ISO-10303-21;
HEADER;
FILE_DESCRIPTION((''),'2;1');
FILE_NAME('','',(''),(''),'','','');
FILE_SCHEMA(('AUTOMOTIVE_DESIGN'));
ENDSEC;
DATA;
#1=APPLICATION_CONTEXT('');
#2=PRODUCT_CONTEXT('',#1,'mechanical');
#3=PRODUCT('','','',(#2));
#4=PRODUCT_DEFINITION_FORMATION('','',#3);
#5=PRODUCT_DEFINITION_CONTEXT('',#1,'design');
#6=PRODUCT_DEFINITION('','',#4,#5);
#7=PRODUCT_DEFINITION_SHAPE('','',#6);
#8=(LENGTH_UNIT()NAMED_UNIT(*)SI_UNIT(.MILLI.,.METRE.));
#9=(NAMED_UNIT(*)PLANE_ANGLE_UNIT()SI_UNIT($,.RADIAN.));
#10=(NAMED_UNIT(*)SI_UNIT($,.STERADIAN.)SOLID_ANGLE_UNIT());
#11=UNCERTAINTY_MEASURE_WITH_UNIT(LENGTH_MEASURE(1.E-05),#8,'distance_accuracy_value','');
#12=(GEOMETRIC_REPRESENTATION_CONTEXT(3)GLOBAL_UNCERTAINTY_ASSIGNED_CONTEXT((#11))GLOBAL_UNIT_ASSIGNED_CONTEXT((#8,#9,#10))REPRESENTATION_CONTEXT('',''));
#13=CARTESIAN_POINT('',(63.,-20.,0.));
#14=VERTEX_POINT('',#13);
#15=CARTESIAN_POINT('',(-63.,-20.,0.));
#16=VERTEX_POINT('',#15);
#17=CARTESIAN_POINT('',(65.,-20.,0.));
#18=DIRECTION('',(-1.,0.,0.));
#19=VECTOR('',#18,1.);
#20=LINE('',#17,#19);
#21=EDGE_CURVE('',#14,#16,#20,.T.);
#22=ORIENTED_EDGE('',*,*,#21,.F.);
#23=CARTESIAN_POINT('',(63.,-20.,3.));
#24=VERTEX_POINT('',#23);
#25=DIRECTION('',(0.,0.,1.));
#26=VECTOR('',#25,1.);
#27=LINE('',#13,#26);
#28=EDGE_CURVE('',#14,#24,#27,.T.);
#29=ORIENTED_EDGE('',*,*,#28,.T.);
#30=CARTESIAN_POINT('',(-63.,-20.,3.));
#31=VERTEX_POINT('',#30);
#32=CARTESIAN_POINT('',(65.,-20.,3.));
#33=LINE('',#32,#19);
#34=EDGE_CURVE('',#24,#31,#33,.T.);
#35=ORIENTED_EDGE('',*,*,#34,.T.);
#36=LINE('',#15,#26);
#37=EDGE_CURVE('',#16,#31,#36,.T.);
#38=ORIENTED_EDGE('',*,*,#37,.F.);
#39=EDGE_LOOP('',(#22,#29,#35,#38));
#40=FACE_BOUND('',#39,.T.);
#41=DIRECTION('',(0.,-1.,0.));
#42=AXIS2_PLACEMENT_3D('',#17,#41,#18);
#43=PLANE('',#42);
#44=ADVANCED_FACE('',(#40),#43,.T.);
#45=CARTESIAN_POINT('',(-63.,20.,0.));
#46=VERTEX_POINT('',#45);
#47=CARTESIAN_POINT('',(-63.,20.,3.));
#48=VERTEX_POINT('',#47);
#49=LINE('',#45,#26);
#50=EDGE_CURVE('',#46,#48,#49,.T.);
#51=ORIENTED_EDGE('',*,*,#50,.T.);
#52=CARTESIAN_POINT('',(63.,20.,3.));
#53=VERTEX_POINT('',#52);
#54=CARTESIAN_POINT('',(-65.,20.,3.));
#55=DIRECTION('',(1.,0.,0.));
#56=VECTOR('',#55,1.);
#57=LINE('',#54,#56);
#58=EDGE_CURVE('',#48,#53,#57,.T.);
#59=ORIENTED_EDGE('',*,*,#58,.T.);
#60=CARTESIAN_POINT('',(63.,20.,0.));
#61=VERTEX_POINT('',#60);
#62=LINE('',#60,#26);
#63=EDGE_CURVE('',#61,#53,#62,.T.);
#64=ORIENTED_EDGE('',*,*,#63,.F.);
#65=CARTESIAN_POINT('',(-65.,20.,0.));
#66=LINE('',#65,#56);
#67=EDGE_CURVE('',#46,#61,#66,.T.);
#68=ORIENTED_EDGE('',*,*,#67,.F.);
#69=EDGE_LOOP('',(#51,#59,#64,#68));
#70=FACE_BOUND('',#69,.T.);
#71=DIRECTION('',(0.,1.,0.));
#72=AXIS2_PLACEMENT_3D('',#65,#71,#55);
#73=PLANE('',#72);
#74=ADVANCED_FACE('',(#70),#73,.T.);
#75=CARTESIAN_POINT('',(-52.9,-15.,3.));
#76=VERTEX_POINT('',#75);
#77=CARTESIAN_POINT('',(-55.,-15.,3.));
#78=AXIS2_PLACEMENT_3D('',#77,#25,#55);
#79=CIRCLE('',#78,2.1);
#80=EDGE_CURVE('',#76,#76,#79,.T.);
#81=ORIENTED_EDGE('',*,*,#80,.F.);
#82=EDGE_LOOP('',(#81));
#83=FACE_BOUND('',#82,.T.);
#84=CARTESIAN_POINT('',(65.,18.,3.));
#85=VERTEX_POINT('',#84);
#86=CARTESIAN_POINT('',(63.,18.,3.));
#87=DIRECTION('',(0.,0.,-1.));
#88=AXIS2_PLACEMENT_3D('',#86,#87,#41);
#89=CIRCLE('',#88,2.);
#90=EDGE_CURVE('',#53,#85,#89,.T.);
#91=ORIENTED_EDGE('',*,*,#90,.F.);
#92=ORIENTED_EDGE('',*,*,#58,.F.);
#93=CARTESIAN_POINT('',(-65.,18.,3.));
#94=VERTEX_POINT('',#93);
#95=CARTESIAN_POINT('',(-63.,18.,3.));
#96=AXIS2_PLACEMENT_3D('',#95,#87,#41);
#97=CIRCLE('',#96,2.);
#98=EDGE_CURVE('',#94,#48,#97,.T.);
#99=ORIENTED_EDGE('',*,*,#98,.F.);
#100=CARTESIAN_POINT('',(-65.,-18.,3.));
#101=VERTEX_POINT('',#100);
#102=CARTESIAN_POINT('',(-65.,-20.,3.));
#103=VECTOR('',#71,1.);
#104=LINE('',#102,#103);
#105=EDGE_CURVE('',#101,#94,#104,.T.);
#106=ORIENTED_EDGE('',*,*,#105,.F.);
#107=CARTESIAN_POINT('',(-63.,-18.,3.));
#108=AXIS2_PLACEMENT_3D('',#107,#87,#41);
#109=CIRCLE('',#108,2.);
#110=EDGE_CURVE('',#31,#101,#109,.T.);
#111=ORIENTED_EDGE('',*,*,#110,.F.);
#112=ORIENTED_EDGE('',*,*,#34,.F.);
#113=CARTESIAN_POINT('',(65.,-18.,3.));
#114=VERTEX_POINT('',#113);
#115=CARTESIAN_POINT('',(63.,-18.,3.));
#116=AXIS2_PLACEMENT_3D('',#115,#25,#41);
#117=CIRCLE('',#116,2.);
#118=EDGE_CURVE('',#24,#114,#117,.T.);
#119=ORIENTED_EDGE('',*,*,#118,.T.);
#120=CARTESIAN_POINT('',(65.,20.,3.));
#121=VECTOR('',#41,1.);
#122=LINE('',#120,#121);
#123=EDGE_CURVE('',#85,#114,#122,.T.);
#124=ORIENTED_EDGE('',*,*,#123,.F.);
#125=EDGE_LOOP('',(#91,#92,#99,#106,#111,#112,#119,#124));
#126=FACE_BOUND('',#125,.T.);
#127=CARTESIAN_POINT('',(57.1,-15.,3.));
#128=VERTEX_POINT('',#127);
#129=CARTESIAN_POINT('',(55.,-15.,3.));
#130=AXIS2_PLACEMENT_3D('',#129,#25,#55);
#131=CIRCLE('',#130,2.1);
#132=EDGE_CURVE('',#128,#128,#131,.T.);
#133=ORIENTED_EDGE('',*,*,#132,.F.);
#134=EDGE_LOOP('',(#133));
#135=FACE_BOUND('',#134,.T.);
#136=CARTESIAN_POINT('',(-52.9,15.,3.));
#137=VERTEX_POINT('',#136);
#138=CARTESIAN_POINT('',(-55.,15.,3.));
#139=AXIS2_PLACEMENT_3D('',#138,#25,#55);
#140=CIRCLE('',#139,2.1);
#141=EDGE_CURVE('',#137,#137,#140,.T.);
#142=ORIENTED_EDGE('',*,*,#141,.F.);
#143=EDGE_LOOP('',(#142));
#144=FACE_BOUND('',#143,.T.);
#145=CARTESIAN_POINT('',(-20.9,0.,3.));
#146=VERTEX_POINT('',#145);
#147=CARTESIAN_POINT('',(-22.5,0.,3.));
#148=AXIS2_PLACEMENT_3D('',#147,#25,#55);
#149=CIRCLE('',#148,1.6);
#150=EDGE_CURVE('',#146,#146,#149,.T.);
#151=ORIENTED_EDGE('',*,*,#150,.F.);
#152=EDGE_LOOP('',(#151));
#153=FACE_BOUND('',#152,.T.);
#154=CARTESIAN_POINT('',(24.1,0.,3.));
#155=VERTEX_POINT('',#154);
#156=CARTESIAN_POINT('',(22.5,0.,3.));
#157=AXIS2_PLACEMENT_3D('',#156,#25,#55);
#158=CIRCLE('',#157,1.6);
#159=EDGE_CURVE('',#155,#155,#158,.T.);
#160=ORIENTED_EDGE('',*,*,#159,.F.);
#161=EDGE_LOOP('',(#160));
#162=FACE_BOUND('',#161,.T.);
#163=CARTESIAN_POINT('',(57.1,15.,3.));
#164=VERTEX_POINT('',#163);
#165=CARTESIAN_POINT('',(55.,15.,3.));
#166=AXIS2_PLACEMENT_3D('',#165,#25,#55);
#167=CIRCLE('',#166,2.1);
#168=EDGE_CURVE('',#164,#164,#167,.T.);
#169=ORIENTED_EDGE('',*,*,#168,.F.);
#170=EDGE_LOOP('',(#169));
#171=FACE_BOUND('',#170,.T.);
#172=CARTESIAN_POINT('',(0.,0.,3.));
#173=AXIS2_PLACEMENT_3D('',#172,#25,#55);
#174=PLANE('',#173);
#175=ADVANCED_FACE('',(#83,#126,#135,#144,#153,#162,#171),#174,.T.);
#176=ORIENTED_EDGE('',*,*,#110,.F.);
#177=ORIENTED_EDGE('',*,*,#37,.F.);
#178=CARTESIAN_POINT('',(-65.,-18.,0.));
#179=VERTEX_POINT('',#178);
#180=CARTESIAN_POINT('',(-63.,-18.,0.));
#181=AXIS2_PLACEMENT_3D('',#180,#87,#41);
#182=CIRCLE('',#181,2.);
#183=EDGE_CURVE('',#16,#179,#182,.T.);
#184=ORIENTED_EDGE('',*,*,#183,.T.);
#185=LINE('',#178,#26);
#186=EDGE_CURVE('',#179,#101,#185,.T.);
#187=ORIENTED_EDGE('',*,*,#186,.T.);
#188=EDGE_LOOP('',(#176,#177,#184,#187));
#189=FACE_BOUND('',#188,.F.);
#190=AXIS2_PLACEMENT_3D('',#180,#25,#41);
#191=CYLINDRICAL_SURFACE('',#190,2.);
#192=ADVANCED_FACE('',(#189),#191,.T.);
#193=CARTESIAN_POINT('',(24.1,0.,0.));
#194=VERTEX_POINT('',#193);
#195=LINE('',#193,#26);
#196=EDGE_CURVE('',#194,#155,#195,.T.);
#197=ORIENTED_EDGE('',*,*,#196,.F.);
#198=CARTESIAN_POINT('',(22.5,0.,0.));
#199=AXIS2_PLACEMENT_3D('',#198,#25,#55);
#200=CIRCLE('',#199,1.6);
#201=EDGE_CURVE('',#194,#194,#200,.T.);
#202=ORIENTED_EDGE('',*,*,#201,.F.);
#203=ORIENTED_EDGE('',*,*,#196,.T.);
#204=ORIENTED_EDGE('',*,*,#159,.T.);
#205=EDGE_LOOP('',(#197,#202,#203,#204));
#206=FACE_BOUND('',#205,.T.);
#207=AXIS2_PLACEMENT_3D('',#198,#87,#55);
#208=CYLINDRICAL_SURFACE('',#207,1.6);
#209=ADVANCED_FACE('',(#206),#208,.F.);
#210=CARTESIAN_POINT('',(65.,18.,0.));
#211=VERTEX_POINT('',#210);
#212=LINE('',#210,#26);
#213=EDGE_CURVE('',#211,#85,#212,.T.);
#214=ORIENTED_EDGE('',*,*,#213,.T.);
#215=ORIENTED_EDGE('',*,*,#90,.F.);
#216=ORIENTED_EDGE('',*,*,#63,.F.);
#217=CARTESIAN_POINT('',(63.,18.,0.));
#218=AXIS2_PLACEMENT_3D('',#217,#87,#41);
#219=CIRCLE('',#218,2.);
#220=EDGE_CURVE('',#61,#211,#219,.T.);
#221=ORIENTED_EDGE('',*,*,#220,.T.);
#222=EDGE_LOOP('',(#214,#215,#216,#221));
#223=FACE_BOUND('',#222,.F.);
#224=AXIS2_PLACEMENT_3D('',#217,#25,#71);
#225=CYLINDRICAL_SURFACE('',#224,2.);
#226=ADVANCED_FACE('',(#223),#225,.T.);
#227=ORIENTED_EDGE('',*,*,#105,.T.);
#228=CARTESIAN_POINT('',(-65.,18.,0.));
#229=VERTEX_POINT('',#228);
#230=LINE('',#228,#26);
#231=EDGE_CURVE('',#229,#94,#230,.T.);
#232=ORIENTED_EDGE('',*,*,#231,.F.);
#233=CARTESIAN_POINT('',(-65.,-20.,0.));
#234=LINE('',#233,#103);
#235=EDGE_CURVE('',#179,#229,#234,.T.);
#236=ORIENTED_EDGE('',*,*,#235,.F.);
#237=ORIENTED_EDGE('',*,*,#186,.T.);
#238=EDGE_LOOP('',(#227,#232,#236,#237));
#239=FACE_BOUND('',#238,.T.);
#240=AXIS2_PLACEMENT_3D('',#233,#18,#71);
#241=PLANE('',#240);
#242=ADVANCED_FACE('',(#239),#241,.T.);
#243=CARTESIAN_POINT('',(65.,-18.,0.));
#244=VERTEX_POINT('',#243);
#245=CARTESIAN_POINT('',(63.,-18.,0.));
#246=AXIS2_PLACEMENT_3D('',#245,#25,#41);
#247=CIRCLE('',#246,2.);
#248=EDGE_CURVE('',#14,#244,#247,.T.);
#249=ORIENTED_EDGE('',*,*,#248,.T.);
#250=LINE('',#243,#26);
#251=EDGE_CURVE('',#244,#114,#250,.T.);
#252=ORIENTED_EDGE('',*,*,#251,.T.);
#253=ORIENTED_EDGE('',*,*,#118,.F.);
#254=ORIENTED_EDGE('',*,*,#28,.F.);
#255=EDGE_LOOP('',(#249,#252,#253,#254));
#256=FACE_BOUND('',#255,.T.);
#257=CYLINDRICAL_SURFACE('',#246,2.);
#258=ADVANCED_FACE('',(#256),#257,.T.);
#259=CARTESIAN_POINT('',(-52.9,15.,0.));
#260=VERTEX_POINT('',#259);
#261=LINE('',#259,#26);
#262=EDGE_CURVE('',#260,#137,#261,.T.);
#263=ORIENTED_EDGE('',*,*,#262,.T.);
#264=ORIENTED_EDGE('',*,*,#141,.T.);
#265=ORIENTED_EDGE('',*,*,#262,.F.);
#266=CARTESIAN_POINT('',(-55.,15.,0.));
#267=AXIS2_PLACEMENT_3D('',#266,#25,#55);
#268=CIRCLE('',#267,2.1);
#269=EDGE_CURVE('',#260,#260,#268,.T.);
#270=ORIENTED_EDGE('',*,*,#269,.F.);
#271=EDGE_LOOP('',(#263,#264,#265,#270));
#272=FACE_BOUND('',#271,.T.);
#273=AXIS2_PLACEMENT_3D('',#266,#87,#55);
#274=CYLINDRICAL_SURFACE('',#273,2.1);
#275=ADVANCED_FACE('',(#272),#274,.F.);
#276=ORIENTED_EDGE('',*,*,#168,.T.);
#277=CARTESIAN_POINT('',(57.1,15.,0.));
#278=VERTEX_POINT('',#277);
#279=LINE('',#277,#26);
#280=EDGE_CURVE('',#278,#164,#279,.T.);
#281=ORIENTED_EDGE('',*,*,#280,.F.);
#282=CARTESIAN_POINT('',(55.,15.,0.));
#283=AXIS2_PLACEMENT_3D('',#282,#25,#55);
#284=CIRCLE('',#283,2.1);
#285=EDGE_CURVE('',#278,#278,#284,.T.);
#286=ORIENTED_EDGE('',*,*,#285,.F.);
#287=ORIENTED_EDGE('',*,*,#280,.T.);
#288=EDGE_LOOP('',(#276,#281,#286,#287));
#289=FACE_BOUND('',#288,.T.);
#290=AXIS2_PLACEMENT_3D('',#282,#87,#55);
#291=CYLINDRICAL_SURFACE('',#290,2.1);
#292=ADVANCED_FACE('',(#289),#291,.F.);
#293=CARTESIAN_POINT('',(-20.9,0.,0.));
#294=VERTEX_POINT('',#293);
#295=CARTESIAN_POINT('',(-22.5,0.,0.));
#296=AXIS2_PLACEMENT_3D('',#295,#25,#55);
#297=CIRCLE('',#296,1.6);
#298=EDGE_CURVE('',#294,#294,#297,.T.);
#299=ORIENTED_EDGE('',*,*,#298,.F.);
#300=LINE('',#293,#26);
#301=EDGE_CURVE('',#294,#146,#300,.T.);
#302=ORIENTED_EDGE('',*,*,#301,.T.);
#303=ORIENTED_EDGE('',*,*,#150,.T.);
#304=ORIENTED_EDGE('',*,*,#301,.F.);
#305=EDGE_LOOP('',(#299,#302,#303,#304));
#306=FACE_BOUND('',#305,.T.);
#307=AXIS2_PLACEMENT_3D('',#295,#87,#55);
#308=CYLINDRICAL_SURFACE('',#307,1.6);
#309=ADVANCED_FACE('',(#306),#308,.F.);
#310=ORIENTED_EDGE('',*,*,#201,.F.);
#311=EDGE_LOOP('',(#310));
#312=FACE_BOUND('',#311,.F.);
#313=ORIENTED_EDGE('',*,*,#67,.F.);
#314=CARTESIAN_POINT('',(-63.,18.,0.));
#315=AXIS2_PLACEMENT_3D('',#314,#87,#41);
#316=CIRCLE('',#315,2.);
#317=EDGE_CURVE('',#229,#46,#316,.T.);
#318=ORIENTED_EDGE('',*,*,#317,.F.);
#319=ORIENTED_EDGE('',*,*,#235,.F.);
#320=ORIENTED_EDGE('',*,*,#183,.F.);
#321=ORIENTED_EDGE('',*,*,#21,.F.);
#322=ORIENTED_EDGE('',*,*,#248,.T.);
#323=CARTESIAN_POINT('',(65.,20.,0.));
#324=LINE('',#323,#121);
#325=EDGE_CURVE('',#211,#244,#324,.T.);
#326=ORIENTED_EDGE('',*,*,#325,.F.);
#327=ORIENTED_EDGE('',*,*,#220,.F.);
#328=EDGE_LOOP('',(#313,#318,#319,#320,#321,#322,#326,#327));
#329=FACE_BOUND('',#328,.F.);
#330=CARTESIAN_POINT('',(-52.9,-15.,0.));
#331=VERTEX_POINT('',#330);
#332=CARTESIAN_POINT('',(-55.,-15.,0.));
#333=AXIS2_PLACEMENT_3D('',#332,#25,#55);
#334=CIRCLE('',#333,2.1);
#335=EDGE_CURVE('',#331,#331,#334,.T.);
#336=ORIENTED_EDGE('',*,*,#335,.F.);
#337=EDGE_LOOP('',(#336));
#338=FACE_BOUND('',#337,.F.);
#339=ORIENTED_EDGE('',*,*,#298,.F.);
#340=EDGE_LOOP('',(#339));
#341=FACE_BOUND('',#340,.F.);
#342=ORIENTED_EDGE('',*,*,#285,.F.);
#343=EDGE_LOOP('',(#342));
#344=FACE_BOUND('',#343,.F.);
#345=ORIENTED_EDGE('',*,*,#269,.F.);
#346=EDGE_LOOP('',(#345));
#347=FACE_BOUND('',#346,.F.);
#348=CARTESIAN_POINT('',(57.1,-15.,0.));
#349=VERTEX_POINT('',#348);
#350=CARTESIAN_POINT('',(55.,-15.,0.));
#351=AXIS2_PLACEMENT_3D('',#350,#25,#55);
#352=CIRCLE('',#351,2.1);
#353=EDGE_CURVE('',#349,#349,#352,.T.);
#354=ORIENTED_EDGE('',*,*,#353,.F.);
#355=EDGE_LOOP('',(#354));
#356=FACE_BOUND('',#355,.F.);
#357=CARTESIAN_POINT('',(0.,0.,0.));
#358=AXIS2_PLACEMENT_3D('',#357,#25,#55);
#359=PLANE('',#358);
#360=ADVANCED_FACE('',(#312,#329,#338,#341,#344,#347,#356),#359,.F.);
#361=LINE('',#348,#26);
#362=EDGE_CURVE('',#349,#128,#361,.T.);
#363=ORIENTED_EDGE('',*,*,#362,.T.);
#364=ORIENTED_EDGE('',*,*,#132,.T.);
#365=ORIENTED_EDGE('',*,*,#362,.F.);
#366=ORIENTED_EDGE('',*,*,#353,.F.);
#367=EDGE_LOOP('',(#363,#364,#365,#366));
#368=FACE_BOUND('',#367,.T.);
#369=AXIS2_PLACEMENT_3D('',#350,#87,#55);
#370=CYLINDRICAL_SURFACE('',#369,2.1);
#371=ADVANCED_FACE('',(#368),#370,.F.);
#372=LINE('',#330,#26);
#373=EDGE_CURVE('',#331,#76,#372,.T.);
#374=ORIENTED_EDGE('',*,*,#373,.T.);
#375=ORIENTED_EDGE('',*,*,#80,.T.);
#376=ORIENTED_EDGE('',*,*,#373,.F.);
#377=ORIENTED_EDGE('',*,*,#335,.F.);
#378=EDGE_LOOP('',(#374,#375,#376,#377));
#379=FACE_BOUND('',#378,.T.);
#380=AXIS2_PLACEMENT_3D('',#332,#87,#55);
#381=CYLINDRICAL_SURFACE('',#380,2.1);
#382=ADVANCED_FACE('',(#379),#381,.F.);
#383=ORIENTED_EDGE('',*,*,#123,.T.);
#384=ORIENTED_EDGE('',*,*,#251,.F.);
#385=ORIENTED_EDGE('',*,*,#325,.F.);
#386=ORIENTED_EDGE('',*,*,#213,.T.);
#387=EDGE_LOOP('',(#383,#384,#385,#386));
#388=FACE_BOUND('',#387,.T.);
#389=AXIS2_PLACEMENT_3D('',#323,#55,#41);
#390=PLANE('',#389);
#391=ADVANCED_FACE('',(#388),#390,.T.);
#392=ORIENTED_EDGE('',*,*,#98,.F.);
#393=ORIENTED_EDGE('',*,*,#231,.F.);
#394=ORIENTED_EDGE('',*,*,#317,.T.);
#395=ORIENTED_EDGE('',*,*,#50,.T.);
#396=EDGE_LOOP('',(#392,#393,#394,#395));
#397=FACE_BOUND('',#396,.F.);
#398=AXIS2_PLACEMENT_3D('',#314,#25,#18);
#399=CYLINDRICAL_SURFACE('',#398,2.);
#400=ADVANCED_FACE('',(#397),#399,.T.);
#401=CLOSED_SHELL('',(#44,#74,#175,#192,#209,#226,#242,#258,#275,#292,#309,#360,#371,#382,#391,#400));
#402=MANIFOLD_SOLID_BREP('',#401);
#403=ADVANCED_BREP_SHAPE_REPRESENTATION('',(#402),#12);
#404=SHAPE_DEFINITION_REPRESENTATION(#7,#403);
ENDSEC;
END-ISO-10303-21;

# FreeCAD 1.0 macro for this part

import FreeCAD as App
import Part
import Sketcher
from FreeCAD import Vector


def edges_at(feature, points):
    """Names of the edges that pass closest to the given points."""
    edges = feature.Shape.Edges
    near = lambda p: min(range(len(edges)), key=lambda i: edges[i].distToShape(Part.Vertex(*p))[0])
    return sorted({f"Edge{near(p) + 1}" for p in points})

doc = App.newDocument("Part")
body = doc.addObject("PartDesign::Body", "Body")

sketch1 = body.newObject("Sketcher::SketchObject", "Sketch")
sketch1.AttachmentSupport = (doc.getObject("XY_Plane"), [""])
sketch1.MapMode = "FlatFace"
sketch1.addGeometry(Part.LineSegment(Vector(-65, -20, 0), Vector(65, -20, 0)), False)
sketch1.addGeometry(Part.LineSegment(Vector(65, -20, 0), Vector(65, 20, 0)), False)
sketch1.addGeometry(Part.LineSegment(Vector(65, 20, 0), Vector(-65, 20, 0)), False)
sketch1.addGeometry(Part.LineSegment(Vector(-65, 20, 0), Vector(-65, -20, 0)), False)
sketch1.addGeometry(Part.Circle(Vector(-55, -15, 0), Vector(0, 0, 1), 2.1), False)
sketch1.addGeometry(Part.Circle(Vector(55, -15, 0), Vector(0, 0, 1), 2.1), False)
sketch1.addGeometry(Part.Circle(Vector(-22.5, 0, 0), Vector(0, 0, 1), 1.6), False)
sketch1.addGeometry(Part.Circle(Vector(-55, 15, 0), Vector(0, 0, 1), 2.1), False)
sketch1.addGeometry(Part.Circle(Vector(22.5, 0, 0), Vector(0, 0, 1), 1.6), False)
sketch1.addGeometry(Part.Circle(Vector(55, 15, 0), Vector(0, 0, 1), 2.1), False)
sketch1.addConstraint(Sketcher.Constraint("Coincident", 0, 2, 1, 1))
sketch1.addConstraint(Sketcher.Constraint("Coincident", 1, 2, 2, 1))
sketch1.addConstraint(Sketcher.Constraint("Coincident", 2, 2, 3, 1))
sketch1.addConstraint(Sketcher.Constraint("Coincident", 3, 2, 0, 1))
sketch1.addConstraint(Sketcher.Constraint("Horizontal", 0))
sketch1.addConstraint(Sketcher.Constraint("Vertical", 1))
sketch1.addConstraint(Sketcher.Constraint("Horizontal", 2))
sketch1.addConstraint(Sketcher.Constraint("Vertical", 3))
sketch1.addConstraint(Sketcher.Constraint("Equal", 4, 5))
sketch1.addConstraint(Sketcher.Constraint("Equal", 5, 7))
sketch1.addConstraint(Sketcher.Constraint("Equal", 6, 8))
sketch1.addConstraint(Sketcher.Constraint("Equal", 7, 9))
sketch1.addConstraint(Sketcher.Constraint("Symmetric", 5, 3, 7, 3, -1, 1))
sketch1.addConstraint(Sketcher.Constraint("Symmetric", 6, 3, 8, 3, -1, 1))
sketch1.addConstraint(Sketcher.Constraint("Symmetric", 4, 3, 9, 3, -1, 1))
sketch1.addConstraint(Sketcher.Constraint("Symmetric", 0, 2, 2, 2, -1, 1))
sketch1.addConstraint(Sketcher.Constraint("Symmetric", 4, 3, 5, 3, -2))
sketch1.addConstraint(Sketcher.Constraint("PointOnObject", 6, 3, -1))
sketch1.addConstraint(Sketcher.Constraint("Diameter", 4, 4.2))
sketch1.addConstraint(Sketcher.Constraint("Diameter", 6, 3.2))
sketch1.addConstraint(Sketcher.Constraint("DistanceX", 0, 1, 0, 2, 130.0))
sketch1.addConstraint(Sketcher.Constraint("DistanceY", 1, 1, 1, 2, 40.0))
sketch1.addConstraint(Sketcher.Constraint("DistanceX", 5, 3, 0, 2, 10.0))
sketch1.addConstraint(Sketcher.Constraint("DistanceY", 0, 2, 5, 3, 5.0))
sketch1.addConstraint(Sketcher.Constraint("DistanceX", 6, 3, -1, 1, 22.5))
pad1 = body.newObject("PartDesign::Pad", "Pad")
pad1.Profile = sketch1
pad1.Length = 3
doc.recompute()

fillet = body.newObject("PartDesign::Fillet", "Fillet")
fillet.Base = (pad1, edges_at(pad1, [
    (65, 20, 1.5),
    (65, -20, 1.5),
    (-65, 20, 1.5),
    (-65, -20, 1.5),
]))
fillet.Radius = 2

doc.recompute()
